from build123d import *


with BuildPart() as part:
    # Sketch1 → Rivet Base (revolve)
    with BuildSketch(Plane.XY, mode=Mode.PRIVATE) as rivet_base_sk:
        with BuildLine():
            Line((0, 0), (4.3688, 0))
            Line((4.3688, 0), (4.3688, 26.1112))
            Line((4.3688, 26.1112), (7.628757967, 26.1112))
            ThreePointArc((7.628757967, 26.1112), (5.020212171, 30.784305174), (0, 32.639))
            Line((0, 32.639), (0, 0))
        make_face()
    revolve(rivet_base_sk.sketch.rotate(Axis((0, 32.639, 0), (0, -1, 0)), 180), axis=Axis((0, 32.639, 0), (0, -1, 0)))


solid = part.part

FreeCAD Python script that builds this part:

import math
import FreeCAD as App
import Part
import Sketcher
Q = App.Units.Quantity

doc = App.newDocument("Part")
body = doc.addObject("PartDesign::Body", "Body")

# Sketch on XY plane
sketch1 = body.newObject("Sketcher::SketchObject", "Sketch")
sketch1.AttachmentSupport = (doc.getObject("XY_Plane"), [""])
sketch1.MapMode = "FlatFace"
sketch1.addGeometry([
    Part.LineSegment(App.Vector(0, 0, 0), App.Vector(4.4, 0, 0)),  # 0
    Part.LineSegment(App.Vector(4.4, 0, 0), App.Vector(4.4, 26.1, 0)),  # 1
    Part.LineSegment(App.Vector(4.4, 26.1, 0), App.Vector(7.6, 26.1, 0)),  # 2
    Part.ArcOfCircle(Part.Circle(App.Vector(0, 24.9, 0), App.Vector(0, 0, 1), 7.7), math.radians(9), math.radians(90)),  # 3
    Part.LineSegment(App.Vector(0, 32.6, 0), App.Vector(0, 0, 0)),  # 4
], False)
sketch1.addConstraint([
    Sketcher.Constraint("Coincident", 0, 2, 1, 1),
    Sketcher.Constraint("Coincident", 1, 2, 2, 1),
    Sketcher.Constraint("Coincident", 2, 2, 3, 1),
    Sketcher.Constraint("Coincident", 3, 2, 4, 1),
    Sketcher.Constraint("Coincident", 4, 2, 0, 1),
    Sketcher.Constraint("Horizontal", 0),
    Sketcher.Constraint("Vertical", 1),
    Sketcher.Constraint("Horizontal", 2),
    Sketcher.Constraint("Vertical", 4),
    Sketcher.Constraint("Coincident", 4, 2, -1, 1),
    Sketcher.Constraint("PointOnObject", 3, 3, -2),
    Sketcher.Constraint("Radius", 3, Q("0.304 in")),
    Sketcher.Constraint("DistanceX", 0, 1, 0, 2, Q("0.172 in")),
    Sketcher.Constraint("DistanceY", 1, 1, 1, 2, Q("1.028 in")),
    Sketcher.Constraint("DistanceY", 4, 2, 4, 1, Q("1.285 in")),
])
revolution = body.newObject("PartDesign::Revolution", "Revolution")
revolution.Profile = sketch1
revolution.ReferenceAxis = (sketch1, ["V_Axis"])
revolution.Angle = 360

doc.recompute()
